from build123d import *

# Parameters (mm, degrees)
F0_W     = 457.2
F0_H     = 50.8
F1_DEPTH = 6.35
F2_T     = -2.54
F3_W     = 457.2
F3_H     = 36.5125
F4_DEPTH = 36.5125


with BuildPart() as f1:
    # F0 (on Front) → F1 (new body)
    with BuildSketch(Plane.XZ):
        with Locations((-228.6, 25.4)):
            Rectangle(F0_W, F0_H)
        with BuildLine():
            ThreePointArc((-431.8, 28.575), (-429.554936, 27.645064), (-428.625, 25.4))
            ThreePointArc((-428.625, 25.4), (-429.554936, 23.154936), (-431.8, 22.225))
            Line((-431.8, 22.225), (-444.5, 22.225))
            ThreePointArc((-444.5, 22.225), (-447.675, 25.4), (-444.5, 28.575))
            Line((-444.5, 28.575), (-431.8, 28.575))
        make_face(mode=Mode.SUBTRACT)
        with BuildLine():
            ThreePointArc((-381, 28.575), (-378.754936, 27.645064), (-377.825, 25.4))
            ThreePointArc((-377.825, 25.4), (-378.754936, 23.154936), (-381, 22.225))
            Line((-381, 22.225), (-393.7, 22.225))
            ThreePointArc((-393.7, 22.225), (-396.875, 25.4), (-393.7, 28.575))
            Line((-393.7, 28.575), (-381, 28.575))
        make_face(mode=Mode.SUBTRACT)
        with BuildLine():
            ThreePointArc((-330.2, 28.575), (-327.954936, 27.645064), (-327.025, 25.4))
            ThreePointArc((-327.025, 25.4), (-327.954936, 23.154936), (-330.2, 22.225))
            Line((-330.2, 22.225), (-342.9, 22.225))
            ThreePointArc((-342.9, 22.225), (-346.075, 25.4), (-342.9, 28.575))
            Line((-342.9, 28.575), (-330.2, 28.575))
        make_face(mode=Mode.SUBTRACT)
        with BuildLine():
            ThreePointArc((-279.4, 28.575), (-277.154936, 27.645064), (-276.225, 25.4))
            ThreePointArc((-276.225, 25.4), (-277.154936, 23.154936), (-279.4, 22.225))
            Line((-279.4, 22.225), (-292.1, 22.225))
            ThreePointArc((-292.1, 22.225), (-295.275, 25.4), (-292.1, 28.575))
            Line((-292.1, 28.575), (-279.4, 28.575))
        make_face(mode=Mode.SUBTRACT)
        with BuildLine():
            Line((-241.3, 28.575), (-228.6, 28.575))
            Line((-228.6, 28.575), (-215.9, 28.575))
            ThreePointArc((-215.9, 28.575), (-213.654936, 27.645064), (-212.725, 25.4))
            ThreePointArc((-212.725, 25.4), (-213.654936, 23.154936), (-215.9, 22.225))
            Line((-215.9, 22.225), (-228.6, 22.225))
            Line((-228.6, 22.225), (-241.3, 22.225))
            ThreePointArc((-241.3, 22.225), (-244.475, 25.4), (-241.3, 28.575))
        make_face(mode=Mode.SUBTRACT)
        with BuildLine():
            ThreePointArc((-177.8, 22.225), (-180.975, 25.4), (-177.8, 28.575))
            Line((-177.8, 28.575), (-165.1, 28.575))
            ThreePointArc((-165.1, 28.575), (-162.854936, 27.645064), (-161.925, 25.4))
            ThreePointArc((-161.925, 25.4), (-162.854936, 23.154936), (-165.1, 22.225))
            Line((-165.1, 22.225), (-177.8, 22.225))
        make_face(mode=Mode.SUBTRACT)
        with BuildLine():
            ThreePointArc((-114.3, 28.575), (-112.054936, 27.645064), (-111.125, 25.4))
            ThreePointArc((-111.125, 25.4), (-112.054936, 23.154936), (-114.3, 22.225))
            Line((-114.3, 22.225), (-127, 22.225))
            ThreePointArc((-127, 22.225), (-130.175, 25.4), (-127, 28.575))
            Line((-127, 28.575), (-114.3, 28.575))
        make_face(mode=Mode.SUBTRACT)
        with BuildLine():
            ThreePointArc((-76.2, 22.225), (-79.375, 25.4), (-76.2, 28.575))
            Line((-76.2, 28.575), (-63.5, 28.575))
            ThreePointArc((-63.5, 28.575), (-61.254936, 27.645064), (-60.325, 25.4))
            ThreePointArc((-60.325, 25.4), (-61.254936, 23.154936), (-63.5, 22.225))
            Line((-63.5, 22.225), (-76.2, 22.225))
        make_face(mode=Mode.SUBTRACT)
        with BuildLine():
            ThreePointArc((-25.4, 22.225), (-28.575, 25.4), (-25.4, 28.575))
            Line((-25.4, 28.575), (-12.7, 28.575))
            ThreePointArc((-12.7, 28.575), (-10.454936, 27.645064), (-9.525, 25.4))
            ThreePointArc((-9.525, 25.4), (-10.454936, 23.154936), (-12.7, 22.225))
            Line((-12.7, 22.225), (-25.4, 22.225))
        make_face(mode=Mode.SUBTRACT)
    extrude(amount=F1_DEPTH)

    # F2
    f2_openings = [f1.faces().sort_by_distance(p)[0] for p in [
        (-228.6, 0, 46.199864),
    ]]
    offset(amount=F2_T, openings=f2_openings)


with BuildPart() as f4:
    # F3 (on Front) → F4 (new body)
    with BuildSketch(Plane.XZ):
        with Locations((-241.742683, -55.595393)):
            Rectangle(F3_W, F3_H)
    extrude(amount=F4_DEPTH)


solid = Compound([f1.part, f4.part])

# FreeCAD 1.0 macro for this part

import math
import FreeCAD as App
import Part
import Sketcher
Q = App.Units.Quantity


def faces_at(feature, points):
    """Names of the faces that lie closest to the given points."""
    faces = feature.Shape.Faces
    near = lambda p: min(range(len(faces)), key=lambda i: faces[i].distToShape(Part.Vertex(*p))[0])
    return sorted({f"Face{near(p) + 1}" for p in points})

doc = App.newDocument("Part")
body = doc.addObject("PartDesign::Body", "Body")

sketch1 = body.newObject("Sketcher::SketchObject", "Sketch")
sketch1.AttachmentSupport = (doc.getObject("XZ_Plane"), [""])
sketch1.MapMode = "FlatFace"
sketch1.addGeometry(Part.LineSegment(App.Vector(-457.2, 50.8, 0), App.Vector(-457.2, 0, 0)), False)
sketch1.addGeometry(Part.LineSegment(App.Vector(-457.2, 0, 0), App.Vector(0, 0, 0)), False)
sketch1.addGeometry(Part.LineSegment(App.Vector(0, 0, 0), App.Vector(0, 50.8, 0)), False)
sketch1.addGeometry(Part.LineSegment(App.Vector(0, 50.8, 0), App.Vector(-457.2, 50.8, 0)), False)
sketch1.addGeometry(Part.LineSegment(App.Vector(-444.5, 28.6, 0), App.Vector(-431.8, 28.6, 0)), False)
sketch1.addGeometry(Part.ArcOfCircle(Part.Circle(App.Vector(-431.8, 25.4, 0), App.Vector(0, 0, 1), 3.2), math.radians(0), math.radians(90)), False)
sketch1.addGeometry(Part.ArcOfCircle(Part.Circle(App.Vector(-431.8, 25.4, 0), App.Vector(0, 0, 1), 3.2), math.radians(-90), math.radians(0)), False)
sketch1.addGeometry(Part.LineSegment(App.Vector(-431.8, 22.2, 0), App.Vector(-444.5, 22.2, 0)), False)
sketch1.addGeometry(Part.ArcOfCircle(Part.Circle(App.Vector(-444.5, 25.4, 0), App.Vector(0, 0, 1), 3.2), math.radians(90), math.radians(270)), False)
sketch1.addGeometry(Part.LineSegment(App.Vector(-393.7, 28.6, 0), App.Vector(-381, 28.6, 0)), False)
sketch1.addGeometry(Part.ArcOfCircle(Part.Circle(App.Vector(-381, 25.4, 0), App.Vector(0, 0, 1), 3.2), math.radians(0), math.radians(90)), False)
sketch1.addGeometry(Part.ArcOfCircle(Part.Circle(App.Vector(-381, 25.4, 0), App.Vector(0, 0, 1), 3.2), math.radians(-90), math.radians(0)), False)
sketch1.addGeometry(Part.LineSegment(App.Vector(-381, 22.2, 0), App.Vector(-393.7, 22.2, 0)), False)
sketch1.addGeometry(Part.ArcOfCircle(Part.Circle(App.Vector(-393.7, 25.4, 0), App.Vector(0, 0, 1), 3.2), math.radians(90), math.radians(270)), False)
sketch1.addGeometry(Part.LineSegment(App.Vector(-342.9, 28.6, 0), App.Vector(-330.2, 28.6, 0)), False)
sketch1.addGeometry(Part.ArcOfCircle(Part.Circle(App.Vector(-330.2, 25.4, 0), App.Vector(0, 0, 1), 3.2), math.radians(0), math.radians(90)), False)
sketch1.addGeometry(Part.ArcOfCircle(Part.Circle(App.Vector(-330.2, 25.4, 0), App.Vector(0, 0, 1), 3.2), math.radians(-90), math.radians(0)), False)
sketch1.addGeometry(Part.LineSegment(App.Vector(-330.2, 22.2, 0), App.Vector(-342.9, 22.2, 0)), False)
sketch1.addGeometry(Part.ArcOfCircle(Part.Circle(App.Vector(-342.9, 25.4, 0), App.Vector(0, 0, 1), 3.2), math.radians(90), math.radians(270)), False)
sketch1.addGeometry(Part.LineSegment(App.Vector(-292.1, 28.6, 0), App.Vector(-279.4, 28.6, 0)), False)
sketch1.addGeometry(Part.ArcOfCircle(Part.Circle(App.Vector(-279.4, 25.4, 0), App.Vector(0, 0, 1), 3.2), math.radians(0), math.radians(90)), False)
sketch1.addGeometry(Part.ArcOfCircle(Part.Circle(App.Vector(-279.4, 25.4, 0), App.Vector(0, 0, 1), 3.2), math.radians(-90), math.radians(0)), False)
sketch1.addGeometry(Part.LineSegment(App.Vector(-279.4, 22.2, 0), App.Vector(-292.1, 22.2, 0)), False)
sketch1.addGeometry(Part.ArcOfCircle(Part.Circle(App.Vector(-292.1, 25.4, 0), App.Vector(0, 0, 1), 3.2), math.radians(90), math.radians(270)), False)
sketch1.addGeometry(Part.ArcOfCircle(Part.Circle(App.Vector(-241.3, 25.4, 0), App.Vector(0, 0, 1), 3.2), math.radians(90), math.radians(270)), False)
sketch1.addGeometry(Part.LineSegment(App.Vector(-241.3, 28.6, 0), App.Vector(-215.9, 28.6, 0)), False)
sketch1.addGeometry(Part.ArcOfCircle(Part.Circle(App.Vector(-215.9, 25.4, 0), App.Vector(0, 0, 1), 3.2), math.radians(0), math.radians(90)), False)
sketch1.addGeometry(Part.ArcOfCircle(Part.Circle(App.Vector(-215.9, 25.4, 0), App.Vector(0, 0, 1), 3.2), math.radians(-90), math.radians(0)), False)
sketch1.addGeometry(Part.LineSegment(App.Vector(-215.9, 22.2, 0), App.Vector(-241.3, 22.2, 0)), False)
sketch1.addGeometry(Part.LineSegment(App.Vector(-165.1, 22.2, 0), App.Vector(-177.8, 22.2, 0)), False)
sketch1.addGeometry(Part.ArcOfCircle(Part.Circle(App.Vector(-177.8, 25.4, 0), App.Vector(0, 0, 1), 3.2), math.radians(90), math.radians(270)), False)
sketch1.addGeometry(Part.LineSegment(App.Vector(-177.8, 28.6, 0), App.Vector(-165.1, 28.6, 0)), False)
sketch1.addGeometry(Part.ArcOfCircle(Part.Circle(App.Vector(-165.1, 25.4, 0), App.Vector(0, 0, 1), 3.2), math.radians(0), math.radians(90)), False)
sketch1.addGeometry(Part.ArcOfCircle(Part.Circle(App.Vector(-165.1, 25.4, 0), App.Vector(0, 0, 1), 3.2), math.radians(-90), math.radians(0)), False)
sketch1.addGeometry(Part.LineSegment(App.Vector(-127, 28.6, 0), App.Vector(-114.3, 28.6, 0)), False)
sketch1.addGeometry(Part.ArcOfCircle(Part.Circle(App.Vector(-114.3, 25.4, 0), App.Vector(0, 0, 1), 3.2), math.radians(0), math.radians(90)), False)
sketch1.addGeometry(Part.ArcOfCircle(Part.Circle(App.Vector(-114.3, 25.4, 0), App.Vector(0, 0, 1), 3.2), math.radians(-90), math.radians(0)), False)
sketch1.addGeometry(Part.LineSegment(App.Vector(-114.3, 22.2, 0), App.Vector(-127, 22.2, 0)), False)
sketch1.addGeometry(Part.ArcOfCircle(Part.Circle(App.Vector(-127, 25.4, 0), App.Vector(0, 0, 1), 3.2), math.radians(90), math.radians(270)), False)
sketch1.addGeometry(Part.LineSegment(App.Vector(-63.5, 22.2, 0), App.Vector(-76.2, 22.2, 0)), False)
sketch1.addGeometry(Part.ArcOfCircle(Part.Circle(App.Vector(-76.2, 25.4, 0), App.Vector(0, 0, 1), 3.2), math.radians(90), math.radians(270)), False)
sketch1.addGeometry(Part.LineSegment(App.Vector(-76.2, 28.6, 0), App.Vector(-63.5, 28.6, 0)), False)
sketch1.addGeometry(Part.ArcOfCircle(Part.Circle(App.Vector(-63.5, 25.4, 0), App.Vector(0, 0, 1), 3.2), math.radians(0), math.radians(90)), False)
sketch1.addGeometry(Part.ArcOfCircle(Part.Circle(App.Vector(-63.5, 25.4, 0), App.Vector(0, 0, 1), 3.2), math.radians(-90), math.radians(0)), False)
sketch1.addGeometry(Part.LineSegment(App.Vector(-12.7, 22.2, 0), App.Vector(-25.4, 22.2, 0)), False)
sketch1.addGeometry(Part.ArcOfCircle(Part.Circle(App.Vector(-25.4, 25.4, 0), App.Vector(0, 0, 1), 3.2), math.radians(90), math.radians(270)), False)
sketch1.addGeometry(Part.LineSegment(App.Vector(-25.4, 28.6, 0), App.Vector(-12.7, 28.6, 0)), False)
sketch1.addGeometry(Part.ArcOfCircle(Part.Circle(App.Vector(-12.7, 25.4, 0), App.Vector(0, 0, 1), 3.2), math.radians(0), math.radians(90)), False)
sketch1.addGeometry(Part.ArcOfCircle(Part.Circle(App.Vector(-12.7, 25.4, 0), App.Vector(0, 0, 1), 3.2), math.radians(-90), math.radians(0)), False)
sketch1.addConstraint(Sketcher.Constraint("Coincident", 0, 2, 1, 1))
sketch1.addConstraint(Sketcher.Constraint("Coincident", 1, 2, 2, 1))
sketch1.addConstraint(Sketcher.Constraint("Coincident", 2, 2, 3, 1))
sketch1.addConstraint(Sketcher.Constraint("Coincident", 3, 2, 0, 1))
sketch1.addConstraint(Sketcher.Constraint("Tangent", 4, 2, 5, 2))
sketch1.addConstraint(Sketcher.Constraint("Tangent", 5, 1, 6, 2))
sketch1.addConstraint(Sketcher.Constraint("Tangent", 6, 1, 7, 1))
sketch1.addConstraint(Sketcher.Constraint("Tangent", 7, 2, 8, 2))
sketch1.addConstraint(Sketcher.Constraint("Tangent", 8, 1, 4, 1))
sketch1.addConstraint(Sketcher.Constraint("Tangent", 9, 2, 10, 2))
sketch1.addConstraint(Sketcher.Constraint("Tangent", 10, 1, 11, 2))
sketch1.addConstraint(Sketcher.Constraint("Tangent", 11, 1, 12, 1))
sketch1.addConstraint(Sketcher.Constraint("Tangent", 12, 2, 13, 2))
sketch1.addConstraint(Sketcher.Constraint("Tangent", 13, 1, 9, 1))
sketch1.addConstraint(Sketcher.Constraint("Tangent", 14, 2, 15, 2))
sketch1.addConstraint(Sketcher.Constraint("Tangent", 15, 1, 16, 2))
sketch1.addConstraint(Sketcher.Constraint("Tangent", 16, 1, 17, 1))
sketch1.addConstraint(Sketcher.Constraint("Tangent", 17, 2, 18, 2))
sketch1.addConstraint(Sketcher.Constraint("Tangent", 18, 1, 14, 1))
sketch1.addConstraint(Sketcher.Constraint("Tangent", 19, 2, 20, 2))
sketch1.addConstraint(Sketcher.Constraint("Tangent", 20, 1, 21, 2))
sketch1.addConstraint(Sketcher.Constraint("Tangent", 21, 1, 22, 1))
sketch1.addConstraint(Sketcher.Constraint("Tangent", 22, 2, 23, 2))
sketch1.addConstraint(Sketcher.Constraint("Tangent", 23, 1, 19, 1))
sketch1.addConstraint(Sketcher.Constraint("Tangent", 24, 1, 25, 1))
sketch1.addConstraint(Sketcher.Constraint("Tangent", 25, 2, 26, 2))
sketch1.addConstraint(Sketcher.Constraint("Tangent", 26, 1, 27, 2))
sketch1.addConstraint(Sketcher.Constraint("Tangent", 27, 1, 28, 1))
sketch1.addConstraint(Sketcher.Constraint("Tangent", 28, 2, 24, 2))
sketch1.addConstraint(Sketcher.Constraint("Tangent", 29, 2, 30, 2))
sketch1.addConstraint(Sketcher.Constraint("Tangent", 30, 1, 31, 1))
sketch1.addConstraint(Sketcher.Constraint("Tangent", 31, 2, 32, 2))
sketch1.addConstraint(Sketcher.Constraint("Tangent", 32, 1, 33, 2))
sketch1.addConstraint(Sketcher.Constraint("Tangent", 33, 1, 29, 1))
sketch1.addConstraint(Sketcher.Constraint("Tangent", 34, 2, 35, 2))
sketch1.addConstraint(Sketcher.Constraint("Tangent", 35, 1, 36, 2))
sketch1.addConstraint(Sketcher.Constraint("Tangent", 36, 1, 37, 1))
sketch1.addConstraint(Sketcher.Constraint("Tangent", 37, 2, 38, 2))
sketch1.addConstraint(Sketcher.Constraint("Tangent", 38, 1, 34, 1))
sketch1.addConstraint(Sketcher.Constraint("Tangent", 39, 2, 40, 2))
sketch1.addConstraint(Sketcher.Constraint("Tangent", 40, 1, 41, 1))
sketch1.addConstraint(Sketcher.Constraint("Tangent", 41, 2, 42, 2))
sketch1.addConstraint(Sketcher.Constraint("Tangent", 42, 1, 43, 2))
sketch1.addConstraint(Sketcher.Constraint("Tangent", 43, 1, 39, 1))
sketch1.addConstraint(Sketcher.Constraint("Tangent", 44, 2, 45, 2))
sketch1.addConstraint(Sketcher.Constraint("Tangent", 45, 1, 46, 1))
sketch1.addConstraint(Sketcher.Constraint("Tangent", 46, 2, 47, 2))
sketch1.addConstraint(Sketcher.Constraint("Tangent", 47, 1, 48, 2))
sketch1.addConstraint(Sketcher.Constraint("Tangent", 48, 1, 44, 1))
sketch1.addConstraint(Sketcher.Constraint("Vertical", 0))
sketch1.addConstraint(Sketcher.Constraint("Horizontal", 1))
sketch1.addConstraint(Sketcher.Constraint("Vertical", 2))
sketch1.addConstraint(Sketcher.Constraint("Horizontal", 3))
sketch1.addConstraint(Sketcher.Constraint("Horizontal", 4))
sketch1.addConstraint(Sketcher.Constraint("Horizontal", 7))
sketch1.addConstraint(Sketcher.Constraint("Horizontal", 9))
sketch1.addConstraint(Sketcher.Constraint("Horizontal", 12))
sketch1.addConstraint(Sketcher.Constraint("Horizontal", 14))
sketch1.addConstraint(Sketcher.Constraint("Horizontal", 17))
sketch1.addConstraint(Sketcher.Constraint("Horizontal", 19))
sketch1.addConstraint(Sketcher.Constraint("Horizontal", 22))
sketch1.addConstraint(Sketcher.Constraint("Horizontal", 25))
sketch1.addConstraint(Sketcher.Constraint("Horizontal", 28))
sketch1.addConstraint(Sketcher.Constraint("Horizontal", 29))
sketch1.addConstraint(Sketcher.Constraint("Horizontal", 31))
sketch1.addConstraint(Sketcher.Constraint("Horizontal", 34))
sketch1.addConstraint(Sketcher.Constraint("Horizontal", 37))
sketch1.addConstraint(Sketcher.Constraint("Horizontal", 39))
sketch1.addConstraint(Sketcher.Constraint("Horizontal", 41))
sketch1.addConstraint(Sketcher.Constraint("Horizontal", 44))
sketch1.addConstraint(Sketcher.Constraint("Horizontal", 46))
sketch1.addConstraint(Sketcher.Constraint("Coincident", 1, 2, -1, 1))
sketch1.addConstraint(Sketcher.Constraint("Equal", 5, 6))
sketch1.addConstraint(Sketcher.Constraint("Equal", 8, 10))
sketch1.addConstraint(Sketcher.Constraint("Equal", 10, 11))
sketch1.addConstraint(Sketcher.Constraint("Equal", 13, 15))
sketch1.addConstraint(Sketcher.Constraint("Equal", 15, 16))
sketch1.addConstraint(Sketcher.Constraint("Equal", 18, 20))
sketch1.addConstraint(Sketcher.Constraint("Equal", 20, 21))
sketch1.addConstraint(Sketcher.Constraint("Equal", 23, 24))
sketch1.addConstraint(Sketcher.Constraint("Equal", 24, 26))
sketch1.addConstraint(Sketcher.Constraint("Equal", 27, 30))
sketch1.addConstraint(Sketcher.Constraint("Equal", 30, 32))
sketch1.addConstraint(Sketcher.Constraint("Equal", 33, 35))
sketch1.addConstraint(Sketcher.Constraint("Equal", 35, 36))
sketch1.addConstraint(Sketcher.Constraint("Equal", 38, 40))
sketch1.addConstraint(Sketcher.Constraint("Equal", 40, 42))
sketch1.addConstraint(Sketcher.Constraint("Equal", 43, 45))
sketch1.addConstraint(Sketcher.Constraint("Equal", 45, 47))
sketch1.addConstraint(Sketcher.Constraint("Horizontal", 8, 3, 10, 3))
sketch1.addConstraint(Sketcher.Constraint("Horizontal", 13, 3, 15, 3))
sketch1.addConstraint(Sketcher.Constraint("Horizontal", 18, 3, 20, 3))
sketch1.addConstraint(Sketcher.Constraint("Horizontal", 23, 3, 24, 3))
sketch1.addConstraint(Sketcher.Constraint("Horizontal", 27, 3, 30, 3))
sketch1.addConstraint(Sketcher.Constraint("Horizontal", 33, 3, 35, 3))
sketch1.addConstraint(Sketcher.Constraint("Horizontal", 38, 3, 40, 3))
sketch1.addConstraint(Sketcher.Constraint("Horizontal", 43, 3, 45, 3))
sketch1.addConstraint(Sketcher.Constraint("Horizontal", 48, 3, 5, 1))
sketch1.addConstraint(Sketcher.Constraint("Horizontal", 5, 1, 10, 1))
sketch1.addConstraint(Sketcher.Constraint("Horizontal", 10, 1, 15, 1))
sketch1.addConstraint(Sketcher.Constraint("Horizontal", 15, 1, 20, 1))
sketch1.addConstraint(Sketcher.Constraint("Horizontal", 20, 1, 26, 1))
sketch1.addConstraint(Sketcher.Constraint("Horizontal", 26, 1, 32, 1))
sketch1.addConstraint(Sketcher.Constraint("Horizontal", 32, 1, 35, 1))
sketch1.addConstraint(Sketcher.Constraint("Horizontal", 35, 1, 42, 1))
sketch1.addConstraint(Sketcher.Constraint("Horizontal", 42, 1, 47, 1))
sketch1.addConstraint(Sketcher.Constraint("Equal", 7, 9))
sketch1.addConstraint(Sketcher.Constraint("Equal", 12, 14))
sketch1.addConstraint(Sketcher.Constraint("Equal", 17, 19))
sketch1.addConstraint(Sketcher.Constraint("Equal", 22, 29))
sketch1.addConstraint(Sketcher.Constraint("Equal", 31, 34))
sketch1.addConstraint(Sketcher.Constraint("Equal", 37, 39))
sketch1.addConstraint(Sketcher.Constraint("Equal", 41, 44))
sketch1.addConstraint(Sketcher.Constraint("DistanceX", 1, 1, 1, 2, Q("18 in")))
sketch1.addConstraint(Sketcher.Constraint("DistanceX", 25, 1, 25, 2, Q("1 in")))
sketch1.addConstraint(Sketcher.Constraint("DistanceY", 0, 2, 0, 1, Q("2 in")))
sketch1.addConstraint(Sketcher.Constraint("DistanceX", 4, 1, 4, 2, Q("0.5 in")))
sketch1.addConstraint(Sketcher.Constraint("DistanceX", 5, 3, -1, 1, Q("17 in")))
sketch1.addConstraint(Sketcher.Constraint("DistanceY", -1, 1, 5, 3, Q("1 in")))
sketch1.addConstraint(Sketcher.Constraint("DistanceX", 10, 3, -1, 1, Q("15 in")))
sketch1.addConstraint(Sketcher.Constraint("DistanceX", 15, 3, -1, 1, Q("13 in")))
sketch1.addConstraint(Sketcher.Constraint("DistanceX", 20, 3, -1, 1, Q("11 in")))
sketch1.addConstraint(Sketcher.Constraint("DistanceX", 30, 3, -1, 1, Q("7 in")))
sketch1.addConstraint(Sketcher.Constraint("DistanceX", 38, 3, -1, 1, Q("5 in")))
sketch1.addConstraint(Sketcher.Constraint("DistanceX", 40, 3, -1, 1, Q("3 in")))
sketch1.addConstraint(Sketcher.Constraint("DistanceX", 45, 3, -1, 1, Q("1 in")))
sketch1.addConstraint(Sketcher.Constraint("Radius", 5, Q("0.125 in")))
sketch1.addConstraint(Sketcher.Constraint("DistanceX", 24, 3, -1, 1, Q("9.5 in")))
pad1 = body.newObject("PartDesign::Pad", "Pad")
pad1.Profile = sketch1
pad1.Length = Q("0.25 in")
doc.recompute()

thickness = body.newObject("PartDesign::Thickness", "Thickness")
thickness.Base = (pad1, faces_at(pad1, [(-320.04, 0, 15.24)]))
thickness.Value = Q("0.1 in")
thickness.Reversed = True
thickness.Join = "Arc"
body2 = doc.addObject("PartDesign::Body", "Body001")

sketch2 = body2.newObject("Sketcher::SketchObject", "Sketch001")
sketch2.AttachmentSupport = (doc.getObject("XZ_Plane001"), [""])
sketch2.MapMode = "FlatFace"
sketch2.addGeometry(Part.LineSegment(App.Vector(-470, -37, 0), App.Vector(-470, -74, 0)), False)
sketch2.addGeometry(Part.LineSegment(App.Vector(-470, -74, 0), App.Vector(-13, -74, 0)), False)
sketch2.addGeometry(Part.LineSegment(App.Vector(-13, -74, 0), App.Vector(-13, -37, 0)), False)
sketch2.addGeometry(Part.LineSegment(App.Vector(-13, -37, 0), App.Vector(-470, -37, 0)), False)
sketch2.addConstraint(Sketcher.Constraint("Coincident", 0, 2, 1, 1))
sketch2.addConstraint(Sketcher.Constraint("Coincident", 1, 2, 2, 1))
sketch2.addConstraint(Sketcher.Constraint("Coincident", 2, 2, 3, 1))
sketch2.addConstraint(Sketcher.Constraint("Coincident", 3, 2, 0, 1))
sketch2.addConstraint(Sketcher.Constraint("Vertical", 0))
sketch2.addConstraint(Sketcher.Constraint("Horizontal", 1))
sketch2.addConstraint(Sketcher.Constraint("Vertical", 2))
sketch2.addConstraint(Sketcher.Constraint("Horizontal", 3))
sketch2.addConstraint(Sketcher.Constraint("DistanceX", 1, 1, 1, 2, Q("18 in")))
sketch2.addConstraint(Sketcher.Constraint("DistanceY", 0, 2, 0, 1, Q("1.4375 in")))
sketch2.addConstraint(Sketcher.Constraint("DistanceX", 0, 2, -1, 1, 470.342683))
sketch2.addConstraint(Sketcher.Constraint("DistanceY", 0, 2, -1, 1, 73.851643))
pad2 = body2.newObject("PartDesign::Pad", "Pad001")
pad2.Profile = sketch2
pad2.Length = Q("1.4375 in")

doc.recompute()
